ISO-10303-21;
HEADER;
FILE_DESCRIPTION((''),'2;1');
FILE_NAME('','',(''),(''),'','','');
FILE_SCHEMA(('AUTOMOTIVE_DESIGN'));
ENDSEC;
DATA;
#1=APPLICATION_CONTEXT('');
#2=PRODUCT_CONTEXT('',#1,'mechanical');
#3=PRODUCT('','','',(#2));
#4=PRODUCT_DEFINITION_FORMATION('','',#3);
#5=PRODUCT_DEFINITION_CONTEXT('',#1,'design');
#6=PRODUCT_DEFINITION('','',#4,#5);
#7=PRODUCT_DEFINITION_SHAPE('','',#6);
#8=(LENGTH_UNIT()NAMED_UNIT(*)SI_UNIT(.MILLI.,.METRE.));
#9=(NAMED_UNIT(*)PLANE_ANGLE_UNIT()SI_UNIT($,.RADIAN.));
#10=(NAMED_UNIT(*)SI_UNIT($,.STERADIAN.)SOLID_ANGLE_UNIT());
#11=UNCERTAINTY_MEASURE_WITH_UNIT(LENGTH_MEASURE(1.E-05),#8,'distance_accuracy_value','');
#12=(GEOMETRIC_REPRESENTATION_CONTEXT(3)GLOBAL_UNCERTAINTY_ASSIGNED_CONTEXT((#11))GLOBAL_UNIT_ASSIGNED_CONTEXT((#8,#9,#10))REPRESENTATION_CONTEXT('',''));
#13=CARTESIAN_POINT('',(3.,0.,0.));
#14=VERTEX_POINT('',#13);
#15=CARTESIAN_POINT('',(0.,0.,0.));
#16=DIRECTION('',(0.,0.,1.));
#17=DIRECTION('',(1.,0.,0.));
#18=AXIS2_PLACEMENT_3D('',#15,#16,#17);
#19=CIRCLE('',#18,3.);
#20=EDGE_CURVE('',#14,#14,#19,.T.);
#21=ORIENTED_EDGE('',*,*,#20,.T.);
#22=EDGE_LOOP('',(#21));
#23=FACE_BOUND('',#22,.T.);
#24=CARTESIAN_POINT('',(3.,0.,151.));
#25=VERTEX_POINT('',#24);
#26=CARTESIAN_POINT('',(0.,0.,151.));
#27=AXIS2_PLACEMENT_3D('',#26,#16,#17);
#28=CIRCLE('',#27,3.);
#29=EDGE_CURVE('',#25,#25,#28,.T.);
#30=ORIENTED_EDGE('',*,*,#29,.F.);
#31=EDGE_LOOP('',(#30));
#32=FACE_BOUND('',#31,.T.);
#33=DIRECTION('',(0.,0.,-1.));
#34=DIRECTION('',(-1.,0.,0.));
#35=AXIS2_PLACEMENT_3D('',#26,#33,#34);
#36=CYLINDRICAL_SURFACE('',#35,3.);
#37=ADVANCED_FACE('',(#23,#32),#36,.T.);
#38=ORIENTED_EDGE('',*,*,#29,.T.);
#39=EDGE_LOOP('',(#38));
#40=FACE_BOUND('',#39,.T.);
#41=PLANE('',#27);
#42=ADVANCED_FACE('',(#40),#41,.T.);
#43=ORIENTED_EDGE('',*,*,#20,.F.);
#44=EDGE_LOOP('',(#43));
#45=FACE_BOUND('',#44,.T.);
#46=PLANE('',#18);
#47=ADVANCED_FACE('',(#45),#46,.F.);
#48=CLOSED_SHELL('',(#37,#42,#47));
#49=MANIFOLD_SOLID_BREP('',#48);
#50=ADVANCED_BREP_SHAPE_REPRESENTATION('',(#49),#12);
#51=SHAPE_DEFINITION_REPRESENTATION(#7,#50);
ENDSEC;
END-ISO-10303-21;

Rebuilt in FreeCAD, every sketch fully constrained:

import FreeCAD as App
import Part
import Sketcher

V = App.Vector
Q = App.Units.Quantity

doc = App.newDocument("Part")
body = doc.addObject("PartDesign::Body", "Body")

# Sketch on XY plane
sketch1 = doc.addObject("Sketcher::SketchObject", "Sketch")
body.addObject(sketch1)
sketch1.AttachmentSupport = (doc.XY_Plane, [""])
sketch1.MapMode = "FlatFace"
sketch1.addGeometry(Part.Circle(V(0, 0, 0), V(0, 0, 1), 3), False)
sketch1.addConstraint(Sketcher.Constraint("Coincident", 0, 3, -1, 1))
sketch1.addConstraint(Sketcher.Constraint("Diameter", 0, Q("6 mm")))
pad1 = doc.addObject("PartDesign::Pad", "Pad")
body.addObject(pad1)
pad1.Profile = sketch1
pad1.Length = 151

doc.recompute()
